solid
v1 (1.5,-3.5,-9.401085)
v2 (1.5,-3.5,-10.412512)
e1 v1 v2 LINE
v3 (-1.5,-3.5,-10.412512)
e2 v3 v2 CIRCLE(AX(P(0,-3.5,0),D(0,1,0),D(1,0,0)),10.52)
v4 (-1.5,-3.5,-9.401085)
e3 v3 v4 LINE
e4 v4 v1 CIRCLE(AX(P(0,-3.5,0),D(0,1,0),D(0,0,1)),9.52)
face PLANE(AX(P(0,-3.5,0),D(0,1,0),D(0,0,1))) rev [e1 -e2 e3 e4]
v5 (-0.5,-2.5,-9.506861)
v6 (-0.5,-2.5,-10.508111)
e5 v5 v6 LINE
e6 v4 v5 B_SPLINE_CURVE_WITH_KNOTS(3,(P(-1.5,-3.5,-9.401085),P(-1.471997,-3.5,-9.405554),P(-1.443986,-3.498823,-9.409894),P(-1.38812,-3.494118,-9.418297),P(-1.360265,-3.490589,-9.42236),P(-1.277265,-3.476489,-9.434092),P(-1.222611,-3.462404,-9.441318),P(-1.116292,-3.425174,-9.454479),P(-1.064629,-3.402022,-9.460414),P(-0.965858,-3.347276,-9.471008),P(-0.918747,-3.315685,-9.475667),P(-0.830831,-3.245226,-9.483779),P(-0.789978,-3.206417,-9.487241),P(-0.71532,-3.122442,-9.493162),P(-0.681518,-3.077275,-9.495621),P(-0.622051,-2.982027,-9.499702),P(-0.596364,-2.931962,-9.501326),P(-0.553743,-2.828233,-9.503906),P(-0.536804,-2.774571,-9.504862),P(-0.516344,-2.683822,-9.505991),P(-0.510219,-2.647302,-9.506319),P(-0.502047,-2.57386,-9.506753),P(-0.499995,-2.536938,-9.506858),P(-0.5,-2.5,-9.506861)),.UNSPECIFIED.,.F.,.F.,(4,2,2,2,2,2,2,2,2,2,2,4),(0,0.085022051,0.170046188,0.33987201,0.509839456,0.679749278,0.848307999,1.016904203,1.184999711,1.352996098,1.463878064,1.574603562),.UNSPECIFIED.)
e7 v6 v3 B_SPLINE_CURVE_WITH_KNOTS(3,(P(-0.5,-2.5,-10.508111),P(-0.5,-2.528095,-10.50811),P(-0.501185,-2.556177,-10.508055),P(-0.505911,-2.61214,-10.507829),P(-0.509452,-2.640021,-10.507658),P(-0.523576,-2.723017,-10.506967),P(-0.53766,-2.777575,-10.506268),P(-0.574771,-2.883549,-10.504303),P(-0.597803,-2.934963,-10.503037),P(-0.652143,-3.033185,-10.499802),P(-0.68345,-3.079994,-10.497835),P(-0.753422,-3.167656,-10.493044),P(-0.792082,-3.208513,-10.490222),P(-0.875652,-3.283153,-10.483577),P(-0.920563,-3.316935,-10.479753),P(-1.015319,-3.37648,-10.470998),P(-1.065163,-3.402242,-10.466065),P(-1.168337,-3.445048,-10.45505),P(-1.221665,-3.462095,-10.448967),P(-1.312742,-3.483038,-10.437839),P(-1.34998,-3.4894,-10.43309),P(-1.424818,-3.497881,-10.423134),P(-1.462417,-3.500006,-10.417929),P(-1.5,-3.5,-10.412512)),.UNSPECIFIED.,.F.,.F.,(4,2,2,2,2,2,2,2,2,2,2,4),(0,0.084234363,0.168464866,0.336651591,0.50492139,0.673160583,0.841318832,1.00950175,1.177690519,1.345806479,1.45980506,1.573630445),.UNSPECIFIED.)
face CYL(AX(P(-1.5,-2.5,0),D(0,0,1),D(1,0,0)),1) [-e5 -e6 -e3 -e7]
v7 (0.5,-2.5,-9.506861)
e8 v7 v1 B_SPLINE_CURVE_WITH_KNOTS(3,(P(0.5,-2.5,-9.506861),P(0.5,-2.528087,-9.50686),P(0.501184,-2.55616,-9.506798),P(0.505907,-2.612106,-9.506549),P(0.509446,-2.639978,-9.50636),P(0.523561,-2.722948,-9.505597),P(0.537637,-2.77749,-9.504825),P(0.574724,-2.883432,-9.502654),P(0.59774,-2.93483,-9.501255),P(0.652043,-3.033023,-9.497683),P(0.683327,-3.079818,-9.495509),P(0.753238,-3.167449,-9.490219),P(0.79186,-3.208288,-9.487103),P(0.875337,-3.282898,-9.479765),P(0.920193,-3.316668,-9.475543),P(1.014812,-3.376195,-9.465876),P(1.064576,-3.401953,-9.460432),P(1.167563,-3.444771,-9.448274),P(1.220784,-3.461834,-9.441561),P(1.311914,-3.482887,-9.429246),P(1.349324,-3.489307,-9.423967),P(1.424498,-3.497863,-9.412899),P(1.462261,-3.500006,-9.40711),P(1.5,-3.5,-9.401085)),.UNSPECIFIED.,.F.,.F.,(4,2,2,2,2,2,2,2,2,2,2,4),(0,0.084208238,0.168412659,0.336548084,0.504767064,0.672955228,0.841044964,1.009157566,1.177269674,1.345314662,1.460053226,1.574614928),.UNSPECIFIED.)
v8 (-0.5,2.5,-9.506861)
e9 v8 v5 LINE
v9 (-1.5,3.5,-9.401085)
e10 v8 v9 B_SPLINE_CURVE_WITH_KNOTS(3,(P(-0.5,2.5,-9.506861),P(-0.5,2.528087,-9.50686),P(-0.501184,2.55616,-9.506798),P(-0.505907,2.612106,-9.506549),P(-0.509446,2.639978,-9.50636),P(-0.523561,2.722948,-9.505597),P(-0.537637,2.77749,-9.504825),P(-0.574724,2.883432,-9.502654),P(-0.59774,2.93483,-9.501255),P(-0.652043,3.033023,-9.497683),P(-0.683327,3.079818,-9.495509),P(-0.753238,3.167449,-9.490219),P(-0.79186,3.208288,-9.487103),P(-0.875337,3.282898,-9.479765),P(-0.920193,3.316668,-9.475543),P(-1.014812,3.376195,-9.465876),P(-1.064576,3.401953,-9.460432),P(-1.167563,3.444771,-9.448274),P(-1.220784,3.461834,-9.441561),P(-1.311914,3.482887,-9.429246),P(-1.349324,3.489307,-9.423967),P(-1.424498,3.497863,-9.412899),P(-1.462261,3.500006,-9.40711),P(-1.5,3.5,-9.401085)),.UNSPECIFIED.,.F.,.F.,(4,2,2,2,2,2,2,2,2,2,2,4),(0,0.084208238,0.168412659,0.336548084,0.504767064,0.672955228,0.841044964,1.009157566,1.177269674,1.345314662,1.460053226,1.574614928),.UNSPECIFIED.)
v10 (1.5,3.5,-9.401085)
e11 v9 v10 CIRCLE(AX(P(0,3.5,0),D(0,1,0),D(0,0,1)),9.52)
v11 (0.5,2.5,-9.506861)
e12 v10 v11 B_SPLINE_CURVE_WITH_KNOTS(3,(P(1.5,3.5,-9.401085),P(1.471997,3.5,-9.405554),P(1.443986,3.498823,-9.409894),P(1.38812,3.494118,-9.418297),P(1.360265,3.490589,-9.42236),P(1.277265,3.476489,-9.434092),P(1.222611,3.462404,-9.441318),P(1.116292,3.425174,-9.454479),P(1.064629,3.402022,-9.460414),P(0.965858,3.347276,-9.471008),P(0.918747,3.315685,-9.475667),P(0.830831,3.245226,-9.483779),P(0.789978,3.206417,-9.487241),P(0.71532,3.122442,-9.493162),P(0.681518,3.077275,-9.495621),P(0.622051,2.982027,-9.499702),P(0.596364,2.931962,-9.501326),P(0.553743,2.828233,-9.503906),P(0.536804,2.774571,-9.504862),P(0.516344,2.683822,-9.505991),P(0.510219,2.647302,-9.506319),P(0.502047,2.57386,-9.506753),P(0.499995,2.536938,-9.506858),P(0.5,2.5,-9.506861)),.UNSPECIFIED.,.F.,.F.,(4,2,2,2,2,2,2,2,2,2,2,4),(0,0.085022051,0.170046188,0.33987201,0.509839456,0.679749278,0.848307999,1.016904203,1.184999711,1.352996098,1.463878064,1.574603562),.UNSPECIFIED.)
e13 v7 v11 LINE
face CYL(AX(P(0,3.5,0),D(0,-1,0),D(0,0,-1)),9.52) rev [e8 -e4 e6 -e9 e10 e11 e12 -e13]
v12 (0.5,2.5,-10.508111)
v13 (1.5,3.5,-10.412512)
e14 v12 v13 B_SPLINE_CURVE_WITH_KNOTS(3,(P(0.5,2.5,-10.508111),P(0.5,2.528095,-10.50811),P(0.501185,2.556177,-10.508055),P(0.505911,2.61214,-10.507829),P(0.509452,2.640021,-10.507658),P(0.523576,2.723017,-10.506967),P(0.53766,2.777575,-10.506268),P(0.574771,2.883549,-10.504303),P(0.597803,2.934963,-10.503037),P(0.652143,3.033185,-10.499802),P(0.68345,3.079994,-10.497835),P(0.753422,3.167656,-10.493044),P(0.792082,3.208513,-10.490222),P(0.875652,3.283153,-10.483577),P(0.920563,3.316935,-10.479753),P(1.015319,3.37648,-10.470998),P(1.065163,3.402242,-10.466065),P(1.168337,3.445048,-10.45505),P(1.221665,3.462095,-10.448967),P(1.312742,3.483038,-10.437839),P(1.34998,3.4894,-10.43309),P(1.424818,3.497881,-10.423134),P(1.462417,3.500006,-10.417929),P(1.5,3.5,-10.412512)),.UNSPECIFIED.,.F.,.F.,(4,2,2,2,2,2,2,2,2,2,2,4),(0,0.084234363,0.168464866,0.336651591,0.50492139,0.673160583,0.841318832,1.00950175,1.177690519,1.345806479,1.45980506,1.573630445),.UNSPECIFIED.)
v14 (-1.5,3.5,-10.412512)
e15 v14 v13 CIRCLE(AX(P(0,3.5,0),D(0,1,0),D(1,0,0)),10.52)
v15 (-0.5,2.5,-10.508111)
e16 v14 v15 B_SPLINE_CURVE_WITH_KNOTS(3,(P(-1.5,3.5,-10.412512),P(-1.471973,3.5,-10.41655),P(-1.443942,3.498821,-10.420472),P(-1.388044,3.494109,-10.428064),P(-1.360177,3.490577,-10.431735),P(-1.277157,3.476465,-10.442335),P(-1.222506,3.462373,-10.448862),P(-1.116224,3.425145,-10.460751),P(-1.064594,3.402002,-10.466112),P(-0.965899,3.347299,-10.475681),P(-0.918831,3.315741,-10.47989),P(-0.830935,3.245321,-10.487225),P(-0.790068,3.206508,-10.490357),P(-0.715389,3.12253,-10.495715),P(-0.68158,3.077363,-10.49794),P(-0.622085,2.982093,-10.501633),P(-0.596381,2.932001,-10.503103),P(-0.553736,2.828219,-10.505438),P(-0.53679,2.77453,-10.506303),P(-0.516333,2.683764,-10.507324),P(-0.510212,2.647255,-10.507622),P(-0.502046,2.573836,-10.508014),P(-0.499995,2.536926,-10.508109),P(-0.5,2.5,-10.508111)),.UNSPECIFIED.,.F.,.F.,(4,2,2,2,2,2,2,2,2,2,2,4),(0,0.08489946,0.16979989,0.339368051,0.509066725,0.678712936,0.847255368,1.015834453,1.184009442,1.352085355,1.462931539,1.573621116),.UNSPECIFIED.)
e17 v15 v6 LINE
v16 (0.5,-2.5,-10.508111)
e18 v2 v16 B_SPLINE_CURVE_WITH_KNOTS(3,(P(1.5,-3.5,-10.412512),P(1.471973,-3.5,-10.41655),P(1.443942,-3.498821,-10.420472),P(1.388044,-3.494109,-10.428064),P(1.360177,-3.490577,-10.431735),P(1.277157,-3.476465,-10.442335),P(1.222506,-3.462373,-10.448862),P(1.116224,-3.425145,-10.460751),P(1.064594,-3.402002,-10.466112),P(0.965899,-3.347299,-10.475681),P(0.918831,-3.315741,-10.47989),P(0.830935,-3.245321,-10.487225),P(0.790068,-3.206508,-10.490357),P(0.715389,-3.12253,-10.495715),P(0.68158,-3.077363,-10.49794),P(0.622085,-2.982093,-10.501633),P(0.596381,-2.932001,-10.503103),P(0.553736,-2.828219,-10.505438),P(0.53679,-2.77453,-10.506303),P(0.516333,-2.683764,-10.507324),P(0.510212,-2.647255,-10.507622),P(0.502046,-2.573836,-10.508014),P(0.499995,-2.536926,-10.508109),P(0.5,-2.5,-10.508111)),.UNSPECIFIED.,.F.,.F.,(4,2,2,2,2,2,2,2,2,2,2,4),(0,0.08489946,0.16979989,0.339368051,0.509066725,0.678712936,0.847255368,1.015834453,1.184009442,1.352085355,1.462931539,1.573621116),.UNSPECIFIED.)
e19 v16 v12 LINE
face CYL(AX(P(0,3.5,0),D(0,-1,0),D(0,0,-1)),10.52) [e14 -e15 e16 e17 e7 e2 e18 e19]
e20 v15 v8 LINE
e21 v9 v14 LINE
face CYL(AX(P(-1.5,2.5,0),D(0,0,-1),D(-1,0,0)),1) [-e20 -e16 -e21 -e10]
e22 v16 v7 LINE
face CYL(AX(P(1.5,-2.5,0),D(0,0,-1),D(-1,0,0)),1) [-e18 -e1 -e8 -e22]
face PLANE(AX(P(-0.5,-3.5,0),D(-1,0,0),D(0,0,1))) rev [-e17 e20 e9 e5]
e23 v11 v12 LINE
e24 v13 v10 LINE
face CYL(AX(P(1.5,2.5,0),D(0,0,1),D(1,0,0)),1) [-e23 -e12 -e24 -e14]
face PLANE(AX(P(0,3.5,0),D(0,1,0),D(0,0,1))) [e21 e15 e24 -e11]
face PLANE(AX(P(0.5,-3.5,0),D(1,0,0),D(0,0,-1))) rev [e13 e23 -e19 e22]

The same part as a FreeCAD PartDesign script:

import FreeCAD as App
import Part
import Sketcher

V = App.Vector
Q = App.Units.Quantity


def edges_at(feature, points):
    """Names of the edges that pass closest to the given points."""
    edges = feature.Shape.Edges
    near = lambda p: min(range(len(edges)), key=lambda i: edges[i].distToShape(Part.Vertex(*p))[0])
    return sorted({f"Edge{near(p) + 1}" for p in points})

doc = App.newDocument("Part")
body = doc.addObject("PartDesign::Body", "Body")

sketch1 = body.newObject("Sketcher::SketchObject", "Sketch")
sketch1.AttachmentSupport = (doc.getObject("XZ_Plane"), [""])
sketch1.MapMode = "FlatFace"
sketch1.addGeometry([
    Part.Circle(V(0, 0, 0), V(0, 0, 1), 10.52),
    Part.Circle(V(0, 0, 0), V(0, 0, 1), 9.52),
], False)
sketch1.addConstraint([
    Sketcher.Constraint("Coincident", 0, 3, -1, 1),
    Sketcher.Constraint("Coincident", 1, 3, -1, 1),
    Sketcher.Constraint("Diameter", 0, Q("21.04 mm")),
    Sketcher.Constraint("Diameter", 1, Q("19.04 mm")),
])
pad1 = body.newObject("PartDesign::Pad", "Pad")
pad1.Profile = sketch1
pad1.Length = 7
pad1.Midplane = True

sketch2 = body.newObject("Sketcher::SketchObject", "Sketch001")
sketch2.AttachmentSupport = (doc.getObject("XZ_Plane"), [""])
sketch2.MapMode = "FlatFace"
sketch2.addGeometry([
    Part.LineSegment(V(-0.5, -1000, 0), V(-0.5, 0, 0)),
    Part.LineSegment(V(-0.5, 0, 0), V(0.5, 0, 0)),
    Part.LineSegment(V(0.5, 0, 0), V(0.5, -1000, 0)),
    Part.LineSegment(V(0.5, -1000, 0), V(-0.5, -1000, 0)),
], False)
sketch2.addConstraint([
    Sketcher.Constraint("Coincident", 0, 2, 1, 1),
    Sketcher.Constraint("Coincident", 1, 2, 2, 1),
    Sketcher.Constraint("Coincident", 2, 2, 3, 1),
    Sketcher.Constraint("Coincident", 3, 2, 0, 1),
    Sketcher.Constraint("Vertical", 0),
    Sketcher.Constraint("Horizontal", 1),
    Sketcher.Constraint("Vertical", 2),
    Sketcher.Constraint("Horizontal", 3),
    Sketcher.Constraint("Symmetric", 0, 2, 1, 2, -1, 1),
    Sketcher.Constraint("DistanceX", 1, 1, 1, 2, Q("1 mm")),
    Sketcher.Constraint("DistanceY", 0, 1, 0, 2, Q("1000 mm")),
])
pocket1 = body.newObject("PartDesign::Pocket", "Pocket")
pocket1.Profile = sketch2
pocket1.Type = "ThroughAll"
pocket1.Midplane = True
doc.recompute()

fillet = body.newObject("PartDesign::Fillet", "Fillet")
fillet.Base = (pocket1, edges_at(pocket1, [
    (0.5, -3.5, -10.007),
    (-0.5, -3.5, -10.007),
    (0.5, 3.5, -10.007),
    (-0.5, 3.5, -10.007),
]))
fillet.Radius = 1

doc.recompute()
